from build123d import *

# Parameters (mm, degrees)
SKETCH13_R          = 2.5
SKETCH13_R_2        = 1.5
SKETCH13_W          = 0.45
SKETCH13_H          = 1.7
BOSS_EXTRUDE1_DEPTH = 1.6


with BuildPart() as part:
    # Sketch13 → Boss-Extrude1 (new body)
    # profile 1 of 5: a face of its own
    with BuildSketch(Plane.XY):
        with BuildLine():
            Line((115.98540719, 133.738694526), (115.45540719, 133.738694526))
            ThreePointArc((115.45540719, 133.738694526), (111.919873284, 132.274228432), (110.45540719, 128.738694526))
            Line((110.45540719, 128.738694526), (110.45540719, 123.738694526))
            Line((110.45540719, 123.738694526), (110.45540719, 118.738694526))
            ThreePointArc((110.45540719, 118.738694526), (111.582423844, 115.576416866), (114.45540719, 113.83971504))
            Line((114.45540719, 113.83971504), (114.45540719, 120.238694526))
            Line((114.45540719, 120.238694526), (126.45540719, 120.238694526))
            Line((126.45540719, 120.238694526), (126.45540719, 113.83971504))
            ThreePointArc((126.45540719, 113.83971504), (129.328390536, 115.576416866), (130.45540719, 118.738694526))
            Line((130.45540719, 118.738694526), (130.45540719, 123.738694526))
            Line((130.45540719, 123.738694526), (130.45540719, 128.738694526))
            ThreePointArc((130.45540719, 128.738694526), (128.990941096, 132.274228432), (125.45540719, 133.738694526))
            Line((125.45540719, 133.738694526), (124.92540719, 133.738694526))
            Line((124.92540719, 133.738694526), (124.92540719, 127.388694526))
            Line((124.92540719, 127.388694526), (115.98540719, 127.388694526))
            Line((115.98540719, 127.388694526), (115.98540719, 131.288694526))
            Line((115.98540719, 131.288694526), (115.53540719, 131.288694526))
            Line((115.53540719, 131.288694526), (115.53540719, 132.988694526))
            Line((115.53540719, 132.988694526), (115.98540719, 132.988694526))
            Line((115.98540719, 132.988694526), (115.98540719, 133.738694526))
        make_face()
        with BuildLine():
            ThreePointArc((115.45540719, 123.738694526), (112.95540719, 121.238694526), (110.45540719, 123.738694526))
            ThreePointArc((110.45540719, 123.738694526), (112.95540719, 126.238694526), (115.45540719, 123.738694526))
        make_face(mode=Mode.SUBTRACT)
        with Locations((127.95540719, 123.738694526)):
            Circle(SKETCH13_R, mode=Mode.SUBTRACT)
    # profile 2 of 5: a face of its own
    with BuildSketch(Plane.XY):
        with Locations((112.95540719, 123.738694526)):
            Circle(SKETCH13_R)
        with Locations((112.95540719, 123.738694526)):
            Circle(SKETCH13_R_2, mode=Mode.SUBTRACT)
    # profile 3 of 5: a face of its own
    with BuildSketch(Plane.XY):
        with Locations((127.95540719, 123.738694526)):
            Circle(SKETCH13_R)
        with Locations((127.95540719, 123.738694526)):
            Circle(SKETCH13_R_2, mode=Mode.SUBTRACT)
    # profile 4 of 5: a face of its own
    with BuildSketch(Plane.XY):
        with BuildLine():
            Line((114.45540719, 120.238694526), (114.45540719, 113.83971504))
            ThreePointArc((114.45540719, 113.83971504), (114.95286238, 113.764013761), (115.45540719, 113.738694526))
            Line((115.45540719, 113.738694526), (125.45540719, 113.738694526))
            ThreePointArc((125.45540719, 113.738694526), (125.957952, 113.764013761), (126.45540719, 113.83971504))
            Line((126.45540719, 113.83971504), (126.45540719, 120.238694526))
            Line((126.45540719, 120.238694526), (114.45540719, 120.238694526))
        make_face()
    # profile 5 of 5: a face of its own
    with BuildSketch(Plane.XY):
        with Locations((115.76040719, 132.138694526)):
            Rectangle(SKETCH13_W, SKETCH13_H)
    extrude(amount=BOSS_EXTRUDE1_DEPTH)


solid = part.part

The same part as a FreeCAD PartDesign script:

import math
import FreeCAD as App
import Part
import Sketcher

doc = App.newDocument("Part")
body = doc.addObject("PartDesign::Body", "Body")

# Sketch on XY plane
sketch1 = doc.addObject("Sketcher::SketchObject", "Sketch")
body.addObject(sketch1)
sketch1.AttachmentSupport = (doc.XY_Plane, [""])
sketch1.MapMode = "FlatFace"
sketch1.addGeometry([
    Part.LineSegment(App.Vector(115.985407, 127.388695, 0), App.Vector(115.985407, 133.738695, 0)),  # 0
    Part.LineSegment(App.Vector(115.985407, 133.738695, 0), App.Vector(115.455407, 133.738695, 0)),  # 1
    Part.ArcOfCircle(Part.Circle(App.Vector(115.455407, 128.738695, 0), App.Vector(0, 0, 1), 5), math.radians(90), math.radians(180)),  # 2
    Part.LineSegment(App.Vector(110.455407, 128.738695, 0), App.Vector(110.455407, 118.738695, 0)),  # 3
    Part.ArcOfCircle(Part.Circle(App.Vector(115.455407, 118.738695, 0), App.Vector(0, 0, 1), 5), math.radians(-180), math.radians(-101.536959)),  # 4
    Part.ArcOfCircle(Part.Circle(App.Vector(115.455407, 118.738695, 0), App.Vector(0, 0, 1), 5), math.radians(-101.536959), math.radians(-90)),  # 5
    Part.LineSegment(App.Vector(115.455407, 113.738695, 0), App.Vector(125.455407, 113.738695, 0)),  # 6
    Part.ArcOfCircle(Part.Circle(App.Vector(125.455407, 118.738695, 0), App.Vector(0, 0, 1), 5), math.radians(-90), math.radians(-78.463041)),  # 7
    Part.ArcOfCircle(Part.Circle(App.Vector(125.455407, 118.738695, 0), App.Vector(0, 0, 1), 5), math.radians(-78.463041), math.radians(0)),  # 8
    Part.LineSegment(App.Vector(130.455407, 118.738695, 0), App.Vector(130.455407, 128.738695, 0)),  # 9
    Part.ArcOfCircle(Part.Circle(App.Vector(125.455407, 128.738695, 0), App.Vector(0, 0, 1), 5), math.radians(0), math.radians(90)),  # 10
    Part.LineSegment(App.Vector(125.455407, 133.738695, 0), App.Vector(124.925407, 133.738695, 0)),  # 11
    Part.LineSegment(App.Vector(124.925407, 133.738695, 0), App.Vector(124.925407, 127.388695, 0)),  # 12
    Part.LineSegment(App.Vector(124.925407, 127.388695, 0), App.Vector(115.985407, 127.388695, 0)),  # 13
    Part.Circle(App.Vector(112.955407, 123.738695, 0), App.Vector(0, 0, 1), 1.5),  # 14
    Part.Circle(App.Vector(127.955407, 123.738695, 0), App.Vector(0, 0, 1), 1.5),  # 15
], False)
sketch1.addConstraint([
    Sketcher.Constraint("Coincident", 0, 2, 1, 1),
    Sketcher.Constraint("Tangent", 1, 2, 2, 1),
    Sketcher.Constraint("Tangent", 2, 2, 3, 1),
    Sketcher.Constraint("Tangent", 3, 2, 4, 1),
    Sketcher.Constraint("Tangent", 4, 2, 5, 1),
    Sketcher.Constraint("Tangent", 5, 2, 6, 1),
    Sketcher.Constraint("Tangent", 6, 2, 7, 1),
    Sketcher.Constraint("Tangent", 7, 2, 8, 1),
    Sketcher.Constraint("Tangent", 8, 2, 9, 1),
    Sketcher.Constraint("Tangent", 9, 2, 10, 1),
    Sketcher.Constraint("Tangent", 10, 2, 11, 1),
    Sketcher.Constraint("Coincident", 11, 2, 12, 1),
    Sketcher.Constraint("Coincident", 12, 2, 13, 1),
    Sketcher.Constraint("Coincident", 13, 2, 0, 1),
    Sketcher.Constraint("Vertical", 0),
    Sketcher.Constraint("Horizontal", 1),
    Sketcher.Constraint("Vertical", 3),
    Sketcher.Constraint("Horizontal", 6),
    Sketcher.Constraint("Vertical", 9),
    Sketcher.Constraint("Horizontal", 11),
    Sketcher.Constraint("Vertical", 12),
    Sketcher.Constraint("Horizontal", 13),
    Sketcher.Constraint("Equal", 2, 4),
    Sketcher.Constraint("Equal", 4, 5),
    Sketcher.Constraint("Equal", 5, 7),
    Sketcher.Constraint("Equal", 7, 8),
    Sketcher.Constraint("Equal", 8, 10),
    Sketcher.Constraint("Equal", 14, 15),
    Sketcher.Constraint("Horizontal", 2, 3, 10, 3),
    Sketcher.Constraint("Horizontal", 14, 3, 15, 3),
    Sketcher.Constraint("Horizontal", 4, 2, 7, 2),
    Sketcher.Constraint("Equal", 1, 11),
    Sketcher.Constraint("Equal", 6, 3),
    Sketcher.Constraint("Diameter", 14, 3.0),
    Sketcher.Constraint("Radius", 2, 5.0),
    Sketcher.Constraint("DistanceX", 6, 1, 6, 2, 10.0),
    Sketcher.Constraint("DistanceY", 5, 3, 14, 3, 5.0),
    Sketcher.Constraint("DistanceX", 4, 2, 4, 3, 1.0),
    Sketcher.Constraint("DistanceX", 1, 2, 1, 1, 0.53),
    Sketcher.Constraint("DistanceY", 0, 1, 0, 2, 6.35),
    Sketcher.Constraint("DistanceX", 14, 3, 5, 3, 2.5),
    Sketcher.Constraint("DistanceX", 7, 3, 15, 3, 2.5),
    Sketcher.Constraint("DistanceX", -1, 1, 2, 3, 115.455407),
    Sketcher.Constraint("DistanceY", -1, 1, 2, 3, 128.738695),
])
pad1 = doc.addObject("PartDesign::Pad", "Pad")
body.addObject(pad1)
pad1.Profile = sketch1
pad1.Length = 1.6

doc.recompute()
